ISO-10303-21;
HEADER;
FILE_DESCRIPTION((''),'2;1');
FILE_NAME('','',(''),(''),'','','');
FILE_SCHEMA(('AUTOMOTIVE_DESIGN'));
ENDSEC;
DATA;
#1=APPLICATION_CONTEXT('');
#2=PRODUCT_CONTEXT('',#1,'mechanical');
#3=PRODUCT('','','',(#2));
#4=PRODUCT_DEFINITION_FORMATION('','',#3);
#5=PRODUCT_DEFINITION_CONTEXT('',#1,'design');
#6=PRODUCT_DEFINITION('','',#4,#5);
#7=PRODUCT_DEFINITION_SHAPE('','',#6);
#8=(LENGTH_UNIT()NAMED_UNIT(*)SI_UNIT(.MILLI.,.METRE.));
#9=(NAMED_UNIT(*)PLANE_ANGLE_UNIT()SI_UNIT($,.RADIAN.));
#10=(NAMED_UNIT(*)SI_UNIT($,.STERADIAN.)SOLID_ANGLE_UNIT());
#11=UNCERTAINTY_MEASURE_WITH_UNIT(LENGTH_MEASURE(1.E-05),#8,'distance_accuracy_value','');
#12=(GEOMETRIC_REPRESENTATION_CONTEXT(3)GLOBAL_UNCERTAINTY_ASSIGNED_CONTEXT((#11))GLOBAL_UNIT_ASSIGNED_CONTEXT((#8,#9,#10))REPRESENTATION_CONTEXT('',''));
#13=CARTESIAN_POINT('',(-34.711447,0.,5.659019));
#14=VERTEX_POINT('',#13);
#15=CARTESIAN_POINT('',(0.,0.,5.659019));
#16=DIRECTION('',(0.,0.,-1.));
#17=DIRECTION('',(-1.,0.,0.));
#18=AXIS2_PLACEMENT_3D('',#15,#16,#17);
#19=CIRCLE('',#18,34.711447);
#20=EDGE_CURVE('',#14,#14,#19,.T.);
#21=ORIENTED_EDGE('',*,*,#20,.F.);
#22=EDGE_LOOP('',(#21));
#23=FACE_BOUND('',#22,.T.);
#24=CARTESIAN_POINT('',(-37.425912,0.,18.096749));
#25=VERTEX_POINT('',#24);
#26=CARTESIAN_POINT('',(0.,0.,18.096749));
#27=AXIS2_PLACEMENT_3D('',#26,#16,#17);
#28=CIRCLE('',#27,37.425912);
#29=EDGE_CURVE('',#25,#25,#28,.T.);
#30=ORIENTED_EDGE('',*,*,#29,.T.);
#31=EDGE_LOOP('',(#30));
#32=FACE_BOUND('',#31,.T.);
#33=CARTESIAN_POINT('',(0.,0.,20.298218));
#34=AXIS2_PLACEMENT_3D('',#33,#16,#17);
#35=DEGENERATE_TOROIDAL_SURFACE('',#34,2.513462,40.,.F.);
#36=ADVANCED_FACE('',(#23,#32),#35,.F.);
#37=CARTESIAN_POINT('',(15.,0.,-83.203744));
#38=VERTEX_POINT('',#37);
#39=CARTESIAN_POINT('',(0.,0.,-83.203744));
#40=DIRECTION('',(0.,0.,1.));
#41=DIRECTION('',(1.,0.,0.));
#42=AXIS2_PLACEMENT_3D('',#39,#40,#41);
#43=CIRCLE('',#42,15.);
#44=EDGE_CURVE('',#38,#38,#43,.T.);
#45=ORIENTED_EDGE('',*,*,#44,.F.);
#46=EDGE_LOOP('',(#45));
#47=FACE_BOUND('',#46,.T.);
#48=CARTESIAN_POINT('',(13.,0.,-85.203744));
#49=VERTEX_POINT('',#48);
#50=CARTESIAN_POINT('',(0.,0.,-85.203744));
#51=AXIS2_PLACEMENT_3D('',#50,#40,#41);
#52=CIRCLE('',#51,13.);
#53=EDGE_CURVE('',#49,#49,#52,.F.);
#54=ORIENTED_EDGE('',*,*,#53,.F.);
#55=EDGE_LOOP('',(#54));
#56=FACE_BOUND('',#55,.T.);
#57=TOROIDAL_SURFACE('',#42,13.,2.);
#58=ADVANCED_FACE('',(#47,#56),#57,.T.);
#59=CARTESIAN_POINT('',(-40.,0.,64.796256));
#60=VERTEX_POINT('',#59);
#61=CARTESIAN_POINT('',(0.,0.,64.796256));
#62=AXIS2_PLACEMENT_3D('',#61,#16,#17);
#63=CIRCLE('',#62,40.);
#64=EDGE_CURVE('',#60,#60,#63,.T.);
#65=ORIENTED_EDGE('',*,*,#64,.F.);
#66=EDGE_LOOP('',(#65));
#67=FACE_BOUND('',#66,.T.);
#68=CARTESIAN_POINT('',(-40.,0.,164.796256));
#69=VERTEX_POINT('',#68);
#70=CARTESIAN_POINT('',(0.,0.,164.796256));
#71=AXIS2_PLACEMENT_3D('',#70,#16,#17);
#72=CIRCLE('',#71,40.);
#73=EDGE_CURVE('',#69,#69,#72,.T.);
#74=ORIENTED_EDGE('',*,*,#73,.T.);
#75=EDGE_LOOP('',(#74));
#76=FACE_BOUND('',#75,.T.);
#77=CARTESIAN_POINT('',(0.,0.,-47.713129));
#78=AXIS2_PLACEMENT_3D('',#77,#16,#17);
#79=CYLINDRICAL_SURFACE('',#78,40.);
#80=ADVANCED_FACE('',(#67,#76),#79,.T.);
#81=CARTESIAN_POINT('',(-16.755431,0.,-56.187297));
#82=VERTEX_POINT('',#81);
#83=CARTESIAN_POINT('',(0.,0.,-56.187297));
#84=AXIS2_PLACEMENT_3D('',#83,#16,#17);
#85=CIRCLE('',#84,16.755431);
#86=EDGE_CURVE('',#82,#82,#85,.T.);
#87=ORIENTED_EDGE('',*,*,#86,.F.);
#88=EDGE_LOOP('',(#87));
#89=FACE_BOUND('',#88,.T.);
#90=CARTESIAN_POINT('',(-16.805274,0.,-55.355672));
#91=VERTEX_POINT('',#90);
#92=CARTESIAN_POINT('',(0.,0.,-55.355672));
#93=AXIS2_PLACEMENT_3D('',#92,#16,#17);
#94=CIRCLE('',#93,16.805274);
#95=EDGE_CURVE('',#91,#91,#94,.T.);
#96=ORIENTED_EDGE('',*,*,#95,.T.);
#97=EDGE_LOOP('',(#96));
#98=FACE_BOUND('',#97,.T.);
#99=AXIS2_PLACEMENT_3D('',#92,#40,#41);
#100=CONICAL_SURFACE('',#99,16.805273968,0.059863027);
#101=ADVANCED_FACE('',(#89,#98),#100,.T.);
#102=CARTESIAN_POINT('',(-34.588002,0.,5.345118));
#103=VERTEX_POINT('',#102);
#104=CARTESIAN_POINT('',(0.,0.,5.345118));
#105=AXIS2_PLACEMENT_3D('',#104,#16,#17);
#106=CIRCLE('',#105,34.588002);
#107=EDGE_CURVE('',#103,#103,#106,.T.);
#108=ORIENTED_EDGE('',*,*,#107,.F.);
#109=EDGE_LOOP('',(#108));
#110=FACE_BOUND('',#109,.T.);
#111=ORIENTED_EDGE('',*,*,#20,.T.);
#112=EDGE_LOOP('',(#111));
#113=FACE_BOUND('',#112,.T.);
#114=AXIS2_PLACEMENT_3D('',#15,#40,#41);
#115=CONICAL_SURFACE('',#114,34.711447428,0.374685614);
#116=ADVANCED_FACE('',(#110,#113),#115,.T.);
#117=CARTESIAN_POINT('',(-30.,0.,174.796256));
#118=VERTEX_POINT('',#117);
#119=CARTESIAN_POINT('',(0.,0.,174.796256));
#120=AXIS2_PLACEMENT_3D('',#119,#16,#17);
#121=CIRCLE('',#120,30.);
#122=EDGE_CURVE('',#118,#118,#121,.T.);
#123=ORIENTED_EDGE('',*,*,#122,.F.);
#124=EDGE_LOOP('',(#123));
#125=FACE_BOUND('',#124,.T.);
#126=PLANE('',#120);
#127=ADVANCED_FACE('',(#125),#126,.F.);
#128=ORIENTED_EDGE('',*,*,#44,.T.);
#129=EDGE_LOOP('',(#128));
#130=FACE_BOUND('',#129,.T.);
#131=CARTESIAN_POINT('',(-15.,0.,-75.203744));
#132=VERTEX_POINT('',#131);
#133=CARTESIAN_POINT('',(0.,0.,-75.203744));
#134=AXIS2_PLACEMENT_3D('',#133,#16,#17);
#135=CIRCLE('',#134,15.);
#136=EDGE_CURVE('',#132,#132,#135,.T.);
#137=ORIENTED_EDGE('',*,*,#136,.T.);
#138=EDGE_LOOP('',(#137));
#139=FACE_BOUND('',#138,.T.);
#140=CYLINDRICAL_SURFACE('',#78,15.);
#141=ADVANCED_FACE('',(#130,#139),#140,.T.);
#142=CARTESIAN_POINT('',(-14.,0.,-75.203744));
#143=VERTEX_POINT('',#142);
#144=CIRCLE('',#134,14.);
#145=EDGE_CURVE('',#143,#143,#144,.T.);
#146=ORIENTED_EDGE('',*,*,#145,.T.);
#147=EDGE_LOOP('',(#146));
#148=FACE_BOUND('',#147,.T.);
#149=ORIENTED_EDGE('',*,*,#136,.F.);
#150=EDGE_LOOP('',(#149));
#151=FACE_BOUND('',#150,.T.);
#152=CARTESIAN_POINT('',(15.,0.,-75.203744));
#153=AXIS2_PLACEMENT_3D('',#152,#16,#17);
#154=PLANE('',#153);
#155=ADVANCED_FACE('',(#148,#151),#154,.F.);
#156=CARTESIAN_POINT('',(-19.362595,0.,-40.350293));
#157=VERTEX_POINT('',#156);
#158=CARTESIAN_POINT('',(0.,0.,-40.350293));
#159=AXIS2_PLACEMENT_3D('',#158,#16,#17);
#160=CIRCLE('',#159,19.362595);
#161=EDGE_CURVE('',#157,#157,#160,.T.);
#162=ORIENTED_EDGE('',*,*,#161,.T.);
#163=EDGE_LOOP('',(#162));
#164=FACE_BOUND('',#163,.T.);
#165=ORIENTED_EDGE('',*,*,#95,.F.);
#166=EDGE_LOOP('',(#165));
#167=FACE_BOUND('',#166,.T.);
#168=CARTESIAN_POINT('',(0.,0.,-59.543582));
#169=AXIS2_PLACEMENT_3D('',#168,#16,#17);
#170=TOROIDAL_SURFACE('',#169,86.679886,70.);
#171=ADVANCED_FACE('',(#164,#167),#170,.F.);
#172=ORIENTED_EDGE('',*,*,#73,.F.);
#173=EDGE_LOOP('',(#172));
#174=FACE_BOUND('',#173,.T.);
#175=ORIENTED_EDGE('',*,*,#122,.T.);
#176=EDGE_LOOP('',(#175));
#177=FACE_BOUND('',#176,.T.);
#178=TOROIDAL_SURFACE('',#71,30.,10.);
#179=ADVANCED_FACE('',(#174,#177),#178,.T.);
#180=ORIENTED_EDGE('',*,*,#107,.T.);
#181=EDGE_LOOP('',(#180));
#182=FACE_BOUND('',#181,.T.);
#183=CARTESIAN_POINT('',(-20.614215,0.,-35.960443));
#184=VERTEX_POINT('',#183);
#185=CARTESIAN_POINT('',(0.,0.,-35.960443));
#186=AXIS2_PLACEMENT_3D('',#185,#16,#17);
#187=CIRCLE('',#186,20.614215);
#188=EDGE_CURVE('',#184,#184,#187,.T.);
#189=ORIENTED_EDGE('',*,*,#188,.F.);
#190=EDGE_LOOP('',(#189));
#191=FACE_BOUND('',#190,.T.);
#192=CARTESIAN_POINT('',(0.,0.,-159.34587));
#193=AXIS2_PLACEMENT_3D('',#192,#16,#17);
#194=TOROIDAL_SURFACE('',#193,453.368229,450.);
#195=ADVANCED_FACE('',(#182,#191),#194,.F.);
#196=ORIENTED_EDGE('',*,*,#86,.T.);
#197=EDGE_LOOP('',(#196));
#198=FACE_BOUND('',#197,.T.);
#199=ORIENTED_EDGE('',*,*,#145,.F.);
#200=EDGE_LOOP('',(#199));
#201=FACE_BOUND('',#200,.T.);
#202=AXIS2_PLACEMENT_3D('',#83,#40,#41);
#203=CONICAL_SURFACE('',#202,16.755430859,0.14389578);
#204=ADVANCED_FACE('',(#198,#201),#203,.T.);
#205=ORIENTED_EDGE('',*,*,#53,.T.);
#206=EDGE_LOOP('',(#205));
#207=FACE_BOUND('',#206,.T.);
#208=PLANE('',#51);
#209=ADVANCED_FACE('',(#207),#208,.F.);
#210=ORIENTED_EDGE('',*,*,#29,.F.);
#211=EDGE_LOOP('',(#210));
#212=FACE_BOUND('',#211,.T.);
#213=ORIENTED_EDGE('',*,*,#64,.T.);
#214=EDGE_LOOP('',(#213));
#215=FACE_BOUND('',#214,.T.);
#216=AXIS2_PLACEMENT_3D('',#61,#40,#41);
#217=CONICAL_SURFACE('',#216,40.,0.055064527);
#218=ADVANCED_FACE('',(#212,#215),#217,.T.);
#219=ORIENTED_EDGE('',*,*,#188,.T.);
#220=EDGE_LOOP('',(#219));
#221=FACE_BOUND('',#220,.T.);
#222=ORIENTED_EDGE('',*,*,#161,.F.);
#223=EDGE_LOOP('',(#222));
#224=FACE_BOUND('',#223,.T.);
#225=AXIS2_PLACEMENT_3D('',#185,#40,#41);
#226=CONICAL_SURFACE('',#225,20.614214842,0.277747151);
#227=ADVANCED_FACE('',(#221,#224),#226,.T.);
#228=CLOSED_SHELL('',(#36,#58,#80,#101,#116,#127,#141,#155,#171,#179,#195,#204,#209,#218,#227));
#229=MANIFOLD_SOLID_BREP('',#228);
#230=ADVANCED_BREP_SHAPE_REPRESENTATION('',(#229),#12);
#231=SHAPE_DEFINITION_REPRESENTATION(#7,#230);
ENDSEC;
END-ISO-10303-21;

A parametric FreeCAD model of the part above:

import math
import FreeCAD as App
import Part
import Sketcher
from FreeCAD import Vector


def edges_at(feature, points):
    """Names of the edges that pass closest to the given points."""
    edges = feature.Shape.Edges
    near = lambda p: min(range(len(edges)), key=lambda i: edges[i].distToShape(Part.Vertex(*p))[0])
    return sorted({f"Edge{near(p) + 1}" for p in points})

doc = App.newDocument("Part")
body = doc.addObject("PartDesign::Body", "Body")

# Sketch on XZ plane
sketch1 = body.newObject("Sketcher::SketchObject", "Sketch")
sketch1.AttachmentSupport = (doc.getObject("XZ_Plane"), [""])
sketch1.MapMode = "FlatFace"
sketch1.addGeometry([
    Part.LineSegment(Vector(15, -85.203744, 0), Vector(0, -85.203744, 0)),  # 0
    Part.LineSegment(Vector(0, -85.203744, 0), Vector(0, 174.796256, 0)),  # 1
    Part.LineSegment(Vector(0, 174.796256, 0), Vector(30, 174.796256, 0)),  # 2
    Part.ArcOfCircle(Part.Circle(Vector(30, 164.796256, 0), Vector(0, 0, 1), 10), math.radians(0), math.radians(90)),  # 3
    Part.LineSegment(Vector(40, 164.796256, 0), Vector(40, 64.796256, 0)),  # 4
    Part.LineSegment(Vector(40, 64.796256, 0), Vector(37.425912, 18.096749, 0)),  # 5
    Part.ArcOfCircle(Part.Circle(Vector(-2.513462, 20.298218, 0), Vector(0, 0, 1), 40), math.radians(-21.467904), math.radians(-3.154965)),  # 6
    Part.LineSegment(Vector(34.711447, 5.659019, 0), Vector(34.588002, 5.345118, 0)),  # 7
    Part.ArcOfCircle(Part.Circle(Vector(453.368229, -159.34587, 0), Vector(0, 0, 1), 450), math.radians(158.532096), math.radians(164.08626)),  # 8
    Part.LineSegment(Vector(20.614215, -35.960443, 0), Vector(19.362595, -40.350293, 0)),  # 9
    Part.ArcOfCircle(Part.Circle(Vector(86.679886, -59.543582, 0), Vector(0, 0, 1), 70), math.radians(164.08626), math.radians(176.570101)),  # 10
    Part.LineSegment(Vector(16.805274, -55.355672, 0), Vector(16.755431, -56.187297, 0)),  # 11
    Part.LineSegment(Vector(16.755431, -56.187297, 0), Vector(14, -75.203744, 0)),  # 12
    Part.LineSegment(Vector(14, -75.203744, 0), Vector(15, -75.203744, 0)),  # 13
    Part.LineSegment(Vector(15, -75.203744, 0), Vector(15, -85.203744, 0)),  # 14
], False)
sketch1.addConstraint([
    Sketcher.Constraint("Coincident", 0, 2, 1, 1),
    Sketcher.Constraint("Coincident", 1, 2, 2, 1),
    Sketcher.Constraint("Coincident", 2, 2, 3, 2),
    Sketcher.Constraint("Coincident", 3, 1, 4, 1),
    Sketcher.Constraint("Coincident", 4, 2, 5, 1),
    Sketcher.Constraint("Coincident", 5, 2, 6, 2),
    Sketcher.Constraint("Coincident", 6, 1, 7, 1),
    Sketcher.Constraint("Coincident", 7, 2, 8, 1),
    Sketcher.Constraint("Coincident", 8, 2, 9, 1),
    Sketcher.Constraint("Coincident", 9, 2, 10, 1),
    Sketcher.Constraint("Coincident", 10, 2, 11, 1),
    Sketcher.Constraint("Coincident", 11, 2, 12, 1),
    Sketcher.Constraint("Coincident", 12, 2, 13, 1),
    Sketcher.Constraint("Coincident", 13, 2, 14, 1),
    Sketcher.Constraint("Coincident", 14, 2, 0, 1),
    Sketcher.Constraint("Horizontal", 0),
    Sketcher.Constraint("Vertical", 1),
    Sketcher.Constraint("Horizontal", 2),
    Sketcher.Constraint("Vertical", 4),
    Sketcher.Constraint("Horizontal", 13),
    Sketcher.Constraint("Vertical", 14),
    Sketcher.Constraint("PointOnObject", 0, 2, -2),
    Sketcher.Constraint("Radius", 3, 10.0),
    Sketcher.Constraint("Radius", 6, 40.0),
    Sketcher.Constraint("Radius", 8, 450.0),
    Sketcher.Constraint("Radius", 10, 70.0),
    Sketcher.Constraint("DistanceX", 0, 2, 0, 1, 15.0),
    Sketcher.Constraint("DistanceX", 2, 1, 2, 2, 30.0),
    Sketcher.Constraint("DistanceX", 13, 1, 13, 2, 1.0),
    Sketcher.Constraint("DistanceY", 1, 1, 1, 2, 260.0),
    Sketcher.Constraint("DistanceY", 4, 2, 4, 1, 100.0),
    Sketcher.Constraint("DistanceY", 14, 2, 14, 1, 10.0),
    Sketcher.Constraint("DistanceX", -1, 1, 3, 3, 30.0),
    Sketcher.Constraint("DistanceY", 3, 1, 2, 2, 10.0),
    Sketcher.Constraint("DistanceX", -1, 1, 7, 2, 34.588002),
    Sketcher.Constraint("DistanceY", 10, 3, 6, 3, 79.8418),
    Sketcher.Constraint("DistanceY", 6, 1, 6, 3, 14.639199),
    Sketcher.Constraint("DistanceY", 7, 2, 6, 1, 0.313901),
    Sketcher.Constraint("DistanceY", 0, 2, 8, 2, 49.243301),
    Sketcher.Constraint("DistanceX", 6, 3, -1, 1, 2.513462),
    Sketcher.Constraint("DistanceX", -1, 1, 8, 3, 453.368229),
    Sketcher.Constraint("DistanceY", 8, 3, -1, 1, 159.34587),
    Sketcher.Constraint("DistanceX", -1, 1, 5, 2, 37.425912),
    Sketcher.Constraint("DistanceX", -1, 1, 11, 2, 16.755431),
    Sketcher.Constraint("DistanceX", 6, 1, 10, 3, 51.968439),
    Sketcher.Constraint("DistanceX", 9, 2, 8, 2, 1.25162),
    Sketcher.Constraint("DistanceY", 9, 2, 7, 2, 45.695411),
    Sketcher.Constraint("DistanceX", 10, 2, 9, 2, 2.557321),
    Sketcher.Constraint("Distance", 11, 0.833117),
])
revolution = body.newObject("PartDesign::Revolution", "Revolution")
revolution.Profile = sketch1
revolution.ReferenceAxis = (sketch1, ["V_Axis"])
revolution.Angle = 360
doc.recompute()

fillet = body.newObject("PartDesign::Fillet", "Fillet")
fillet.Base = (revolution, edges_at(revolution, [(15, 0, -85.204)]))
fillet.Radius = 2

doc.recompute()
